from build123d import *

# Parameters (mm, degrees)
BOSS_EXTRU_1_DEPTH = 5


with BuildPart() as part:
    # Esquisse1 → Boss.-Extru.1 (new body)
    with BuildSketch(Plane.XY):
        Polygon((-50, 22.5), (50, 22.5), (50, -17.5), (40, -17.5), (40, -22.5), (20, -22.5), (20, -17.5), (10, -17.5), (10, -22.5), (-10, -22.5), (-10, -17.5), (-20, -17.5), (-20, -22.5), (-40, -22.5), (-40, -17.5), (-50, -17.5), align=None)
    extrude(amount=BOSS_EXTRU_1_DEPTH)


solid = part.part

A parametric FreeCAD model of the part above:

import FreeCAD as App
import Part
import Sketcher
Q = App.Units.Quantity


def add_polygon(sketch, points):
    """Adds a closed chain of lines whose ends are joined by coincident constraints."""
    first, n = sketch.GeometryCount, len(points)
    for a, b in zip(points, points[1:] + points[:1]):
        sketch.addGeometry(Part.LineSegment(App.Vector(*a, 0), App.Vector(*b, 0)), False)
    for i in range(n):
        sketch.addConstraint(Sketcher.Constraint("Coincident", first + i, 2, first + (i + 1) % n, 1))

doc = App.newDocument("Part")
body = doc.addObject("PartDesign::Body", "Body")

# Sketch on XY plane
sketch1 = body.newObject("Sketcher::SketchObject", "Sketch")
sketch1.AttachmentSupport = (doc.getObject("XY_Plane"), [""])
sketch1.MapMode = "FlatFace"
add_polygon(sketch1, [(50, 22.5), (-50, 22.5), (-50, -17.5), (-40, -17.5), (-40, -22.5), (-20, -22.5), (-20, -17.5), (-10, -17.5), (-10, -22.5), (10, -22.5), (10, -17.5), (20, -17.5), (20, -22.5), (40, -22.5), (40, -17.5), (50, -17.5)])  # lines 0-15
sketch1.addConstraint([
    Sketcher.Constraint("Horizontal", 0),
    Sketcher.Constraint("Vertical", 1),
    Sketcher.Constraint("Horizontal", 2),
    Sketcher.Constraint("Vertical", 3),
    Sketcher.Constraint("Horizontal", 4),
    Sketcher.Constraint("Vertical", 5),
    Sketcher.Constraint("Horizontal", 6),
    Sketcher.Constraint("Vertical", 7),
    Sketcher.Constraint("Horizontal", 8),
    Sketcher.Constraint("Vertical", 9),
    Sketcher.Constraint("Horizontal", 10),
    Sketcher.Constraint("Vertical", 11),
    Sketcher.Constraint("Horizontal", 12),
    Sketcher.Constraint("Vertical", 13),
    Sketcher.Constraint("Horizontal", 14),
    Sketcher.Constraint("Vertical", 15),
    Sketcher.Constraint("Symmetric", 6, 2, 9, 2, -2),
    Sketcher.Constraint("Symmetric", 4, 2, 11, 2, -2),
    Sketcher.Constraint("Symmetric", 2, 2, 13, 2, -2),
    Sketcher.Constraint("Horizontal", 2, 2, 5, 2),
    Sketcher.Constraint("Horizontal", 4, 2, 7, 2),
    Sketcher.Constraint("Equal", 2, 6),
    Sketcher.Constraint("Equal", 4, 8),
    Sketcher.Constraint("Equal", 10, 14),
    Sketcher.Constraint("DistanceX", 0, 2, 0, 1, Q("100 mm")),
    Sketcher.Constraint("DistanceX", 2, 1, 2, 2, Q("10 mm")),
    Sketcher.Constraint("DistanceY", 1, 2, 1, 1, Q("40 mm")),
    Sketcher.Constraint("DistanceY", 3, 2, 3, 1, Q("5 mm")),
    Sketcher.Constraint("DistanceY", -1, 1, 0, 2, Q("22.5 mm")),
])
pad1 = body.newObject("PartDesign::Pad", "Pad")
pad1.Profile = sketch1
pad1.Length = 5

doc.recompute()
